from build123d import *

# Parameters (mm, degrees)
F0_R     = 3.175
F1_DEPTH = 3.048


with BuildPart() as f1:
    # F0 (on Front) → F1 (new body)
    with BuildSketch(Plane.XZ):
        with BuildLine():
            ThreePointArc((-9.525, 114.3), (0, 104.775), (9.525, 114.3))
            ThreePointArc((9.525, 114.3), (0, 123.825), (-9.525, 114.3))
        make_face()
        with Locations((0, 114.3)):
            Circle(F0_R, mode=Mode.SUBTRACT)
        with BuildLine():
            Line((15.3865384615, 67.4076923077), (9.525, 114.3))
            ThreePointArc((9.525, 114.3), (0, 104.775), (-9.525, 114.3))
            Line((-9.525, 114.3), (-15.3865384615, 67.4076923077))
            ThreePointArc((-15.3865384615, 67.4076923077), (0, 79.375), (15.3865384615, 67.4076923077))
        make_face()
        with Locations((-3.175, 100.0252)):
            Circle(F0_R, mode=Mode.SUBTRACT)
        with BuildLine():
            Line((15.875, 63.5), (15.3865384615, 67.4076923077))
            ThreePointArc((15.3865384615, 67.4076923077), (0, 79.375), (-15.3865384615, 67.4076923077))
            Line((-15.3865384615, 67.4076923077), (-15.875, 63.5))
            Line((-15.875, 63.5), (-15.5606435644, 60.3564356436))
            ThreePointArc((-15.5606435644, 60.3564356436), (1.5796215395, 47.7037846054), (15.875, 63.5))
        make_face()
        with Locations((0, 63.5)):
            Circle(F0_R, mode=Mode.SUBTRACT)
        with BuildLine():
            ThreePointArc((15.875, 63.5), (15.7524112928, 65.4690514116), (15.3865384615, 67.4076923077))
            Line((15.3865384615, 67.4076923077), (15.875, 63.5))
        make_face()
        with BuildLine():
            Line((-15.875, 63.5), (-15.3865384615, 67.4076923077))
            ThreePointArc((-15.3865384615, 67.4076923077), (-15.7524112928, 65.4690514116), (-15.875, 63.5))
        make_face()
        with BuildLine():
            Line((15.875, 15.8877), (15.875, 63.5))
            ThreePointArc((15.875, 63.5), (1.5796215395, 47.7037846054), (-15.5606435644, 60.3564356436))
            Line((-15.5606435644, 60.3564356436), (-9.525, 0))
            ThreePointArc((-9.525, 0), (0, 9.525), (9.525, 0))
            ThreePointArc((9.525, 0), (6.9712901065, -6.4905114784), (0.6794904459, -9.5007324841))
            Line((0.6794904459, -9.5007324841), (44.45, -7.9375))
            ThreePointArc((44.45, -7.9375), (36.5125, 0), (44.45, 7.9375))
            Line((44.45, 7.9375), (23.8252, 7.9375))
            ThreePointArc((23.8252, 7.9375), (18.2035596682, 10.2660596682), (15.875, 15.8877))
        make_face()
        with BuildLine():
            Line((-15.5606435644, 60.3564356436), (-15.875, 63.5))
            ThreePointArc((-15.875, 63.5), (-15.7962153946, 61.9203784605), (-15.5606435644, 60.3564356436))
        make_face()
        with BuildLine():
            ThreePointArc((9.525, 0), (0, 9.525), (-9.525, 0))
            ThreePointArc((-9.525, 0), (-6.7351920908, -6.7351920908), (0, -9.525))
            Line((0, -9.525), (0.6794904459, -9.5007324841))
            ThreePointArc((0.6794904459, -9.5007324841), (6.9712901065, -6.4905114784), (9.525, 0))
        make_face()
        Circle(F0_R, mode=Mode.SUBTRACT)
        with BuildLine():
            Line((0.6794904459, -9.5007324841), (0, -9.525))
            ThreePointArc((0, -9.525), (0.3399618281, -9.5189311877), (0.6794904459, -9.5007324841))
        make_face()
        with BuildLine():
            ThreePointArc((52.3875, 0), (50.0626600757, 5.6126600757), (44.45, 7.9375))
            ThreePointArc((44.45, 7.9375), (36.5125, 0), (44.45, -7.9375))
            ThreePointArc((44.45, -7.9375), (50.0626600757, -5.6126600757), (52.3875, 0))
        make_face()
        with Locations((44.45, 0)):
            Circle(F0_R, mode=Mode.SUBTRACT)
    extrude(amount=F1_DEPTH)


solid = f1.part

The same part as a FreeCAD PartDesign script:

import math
import FreeCAD as App
import Part
import Sketcher

V = App.Vector
Q = App.Units.Quantity

doc = App.newDocument("Part")
body = doc.addObject("PartDesign::Body", "Body")

# Sketch on XZ plane
sketch1 = doc.addObject("Sketcher::SketchObject", "Sketch")
body.addObject(sketch1)
sketch1.AttachmentSupport = (doc.XZ_Plane, [""])
sketch1.MapMode = "FlatFace"
sketch1.addGeometry(Part.ArcOfCircle(Part.Circle(V(0, 114.3, 0), V(0, 0, 1), 9.5), math.radians(0), math.radians(180)), False)
sketch1.addGeometry(Part.LineSegment(V(-9.5, 114.3, 0), V(-15.4, 67.4, 0)), False)
sketch1.addGeometry(Part.ArcOfCircle(Part.Circle(V(0, 63.5, 0), V(0, 0, 1), 15.9), math.radians(165.75), math.radians(180)), False)
sketch1.addGeometry(Part.ArcOfCircle(Part.Circle(V(0, 63.5, 0), V(0, 0, 1), 15.9), math.radians(180), math.radians(191.42)), False)
sketch1.addGeometry(Part.LineSegment(V(-15.6, 60.4, 0), V(-9.5, 0, 0)), False)
sketch1.addGeometry(Part.ArcOfCircle(Part.Circle(V(0, 0, 0), V(0, 0, 1), 9.5), math.radians(180), math.radians(270)), False)
sketch1.addGeometry(Part.ArcOfCircle(Part.Circle(V(0, 0, 0), V(0, 0, 1), 9.5), math.radians(-90), math.radians(-85.91)), False)
sketch1.addGeometry(Part.LineSegment(V(0.7, -9.5, 0), V(44.5, -7.9, 0)), False)
sketch1.addGeometry(Part.ArcOfCircle(Part.Circle(V(44.5, 0, 0), V(0, 0, 1), 7.9), math.radians(-90), math.radians(0)), False)
sketch1.addGeometry(Part.ArcOfCircle(Part.Circle(V(44.5, 0, 0), V(0, 0, 1), 7.9), math.radians(0), math.radians(90)), False)
sketch1.addGeometry(Part.LineSegment(V(44.5, 7.9, 0), V(23.8, 7.9, 0)), False)
sketch1.addGeometry(Part.ArcOfCircle(Part.Circle(V(23.8, 15.9, 0), V(0, 0, 1), 8), math.radians(180), math.radians(270)), False)
sketch1.addGeometry(Part.LineSegment(V(15.9, 15.9, 0), V(15.9, 63.5, 0)), False)
sketch1.addGeometry(Part.ArcOfCircle(Part.Circle(V(0, 63.5, 0), V(0, 0, 1), 15.9), math.radians(0), math.radians(14.25)), False)
sketch1.addGeometry(Part.LineSegment(V(15.4, 67.4, 0), V(9.5, 114.3, 0)), False)
sketch1.addGeometry(Part.Circle(V(0, 0, 0), V(0, 0, 1), 3.2), False)
sketch1.addGeometry(Part.Circle(V(44.5, 0, 0), V(0, 0, 1), 3.2), False)
sketch1.addGeometry(Part.Circle(V(0, 63.5, 0), V(0, 0, 1), 3.2), False)
sketch1.addGeometry(Part.Circle(V(-3.2, 100, 0), V(0, 0, 1), 3.2), False)
sketch1.addGeometry(Part.Circle(V(0, 114.3, 0), V(0, 0, 1), 3.2), False)
sketch1.addConstraint(Sketcher.Constraint("Coincident", 0, 2, 1, 1))
sketch1.addConstraint(Sketcher.Constraint("Coincident", 1, 2, 2, 1))
sketch1.addConstraint(Sketcher.Constraint("Tangent", 2, 2, 3, 1))
sketch1.addConstraint(Sketcher.Constraint("Coincident", 3, 2, 4, 1))
sketch1.addConstraint(Sketcher.Constraint("Coincident", 4, 2, 5, 1))
sketch1.addConstraint(Sketcher.Constraint("Tangent", 5, 2, 6, 1))
sketch1.addConstraint(Sketcher.Constraint("Coincident", 6, 2, 7, 1))
sketch1.addConstraint(Sketcher.Constraint("Coincident", 7, 2, 8, 1))
sketch1.addConstraint(Sketcher.Constraint("Tangent", 8, 2, 9, 1))
sketch1.addConstraint(Sketcher.Constraint("Tangent", 9, 2, 10, 1))
sketch1.addConstraint(Sketcher.Constraint("Tangent", 10, 2, 11, 2))
sketch1.addConstraint(Sketcher.Constraint("Tangent", 11, 1, 12, 1))
sketch1.addConstraint(Sketcher.Constraint("Tangent", 12, 2, 13, 1))
sketch1.addConstraint(Sketcher.Constraint("Coincident", 13, 2, 14, 1))
sketch1.addConstraint(Sketcher.Constraint("Coincident", 14, 2, 0, 1))
sketch1.addConstraint(Sketcher.Constraint("Horizontal", 10))
sketch1.addConstraint(Sketcher.Constraint("Vertical", 12))
sketch1.addConstraint(Sketcher.Constraint("Coincident", 5, 3, -1, 1))
sketch1.addConstraint(Sketcher.Constraint("Coincident", 15, 3, -1, 1))
sketch1.addConstraint(Sketcher.Constraint("Coincident", 13, 3, 2, 3))
sketch1.addConstraint(Sketcher.Constraint("Coincident", 16, 3, 8, 3))
sketch1.addConstraint(Sketcher.Constraint("Coincident", 17, 3, 2, 3))
sketch1.addConstraint(Sketcher.Constraint("Coincident", 19, 3, 0, 3))
sketch1.addConstraint(Sketcher.Constraint("Equal", 2, 3))
sketch1.addConstraint(Sketcher.Constraint("Equal", 0, 5))
sketch1.addConstraint(Sketcher.Constraint("Equal", 5, 6))
sketch1.addConstraint(Sketcher.Constraint("Equal", 8, 9))
sketch1.addConstraint(Sketcher.Constraint("Equal", 3, 13))
sketch1.addConstraint(Sketcher.Constraint("Equal", 15, 16))
sketch1.addConstraint(Sketcher.Constraint("Equal", 16, 17))
sketch1.addConstraint(Sketcher.Constraint("Equal", 17, 18))
sketch1.addConstraint(Sketcher.Constraint("Equal", 18, 19))
sketch1.addConstraint(Sketcher.Constraint("Symmetric", 2, 2, 12, 2, -2))
sketch1.addConstraint(Sketcher.Constraint("Symmetric", 0, 2, 14, 2, -2))
sketch1.addConstraint(Sketcher.Constraint("Symmetric", 7, 2, 9, 2, -1))
sketch1.addConstraint(Sketcher.Constraint("PointOnObject", 4, 2, -1))
sketch1.addConstraint(Sketcher.Constraint("PointOnObject", 5, 2, -2))
sketch1.addConstraint(Sketcher.Constraint("PointOnObject", 8, 2, -1))
sketch1.addConstraint(Sketcher.Constraint("Horizontal", 19, 3, 0, 2))
sketch1.addConstraint(Sketcher.Constraint("Horizontal", 1, 2, 13, 2))
sketch1.addConstraint(Sketcher.Constraint("Diameter", 15, Q("0.25 in")))
sketch1.addConstraint(Sketcher.Constraint("Radius", 0, Q("0.375 in")))
sketch1.addConstraint(Sketcher.Constraint("Radius", 2, Q("0.625 in")))
sketch1.addConstraint(Sketcher.Constraint("Radius", 8, Q("0.3125 in")))
sketch1.addConstraint(Sketcher.Constraint("Radius", 11, Q("0.313 in")))
sketch1.addConstraint(Sketcher.Constraint("DistanceY", 2, 3, 0, 3, Q("2 in")))
sketch1.addConstraint(Sketcher.Constraint("DistanceY", -1, 1, 0, 3, Q("4.5 in")))
sketch1.addConstraint(Sketcher.Constraint("DistanceX", 18, 3, 14, 2, Q("0.5 in")))
sketch1.addConstraint(Sketcher.Constraint("DistanceX", 10, 2, 10, 1, Q("0.812 in")))
sketch1.addConstraint(Sketcher.Constraint("DistanceY", -1, 1, 18, 3, Q("3.938 in")))
sketch1.addConstraint(Sketcher.Constraint("DistanceX", 1, 2, -1, 1, 15.386538))
sketch1.addConstraint(Sketcher.Constraint("DistanceX", -1, 1, 6, 2, 0.67949))
sketch1.addConstraint(Sketcher.Constraint("Distance", 4, 60.657467))
pad1 = doc.addObject("PartDesign::Pad", "Pad")
body.addObject(pad1)
pad1.Profile = sketch1
pad1.Length = Q("0.12 in")

doc.recompute()
